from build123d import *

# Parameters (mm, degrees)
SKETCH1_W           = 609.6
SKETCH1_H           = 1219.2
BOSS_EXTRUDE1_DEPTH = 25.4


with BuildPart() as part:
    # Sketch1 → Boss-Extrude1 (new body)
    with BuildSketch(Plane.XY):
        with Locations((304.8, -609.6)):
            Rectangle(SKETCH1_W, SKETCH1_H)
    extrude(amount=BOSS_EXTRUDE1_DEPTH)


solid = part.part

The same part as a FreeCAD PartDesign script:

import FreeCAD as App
import Part
import Sketcher

V = App.Vector
Q = App.Units.Quantity

doc = App.newDocument("Part")
params = doc.addObject("Spreadsheet::Sheet", "Params")
for row, (alias, value) in enumerate([
    ("sketch1_width", "24 in"),
    ("sketch1_height", "48 in"),
    ("pad1_length", "1 in"),
], start=1):
    params.set(f"A{row}", alias)
    params.set(f"B{row}", "=" + value)
    params.setAlias(f"B{row}", alias)

body = doc.addObject("PartDesign::Body", "Body")

# Sketch on XY plane
sketch1 = doc.addObject("Sketcher::SketchObject", "Sketch")
body.addObject(sketch1)
sketch1.AttachmentSupport = (doc.XY_Plane, [""])
sketch1.MapMode = "FlatFace"
sketch1.addGeometry([
    Part.LineSegment(V(0, 0, 0), V(0, -1219, 0)),
    Part.LineSegment(V(0, -1219, 0), V(610, -1219, 0)),
    Part.LineSegment(V(610, -1219, 0), V(610, 0, 0)),
    Part.LineSegment(V(610, 0, 0), V(0, 0, 0)),
], False)
sketch1.addConstraint([
    Sketcher.Constraint("Coincident", 0, 2, 1, 1),
    Sketcher.Constraint("Coincident", 1, 2, 2, 1),
    Sketcher.Constraint("Coincident", 2, 2, 3, 1),
    Sketcher.Constraint("Coincident", 3, 2, 0, 1),
    Sketcher.Constraint("Vertical", 0),
    Sketcher.Constraint("Horizontal", 1),
    Sketcher.Constraint("Vertical", 2),
    Sketcher.Constraint("Horizontal", 3),
    Sketcher.Constraint("Coincident", 3, 2, -1, 1),
    Sketcher.Constraint("DistanceX", 1, 1, 1, 2, Q("24 in")),
    Sketcher.Constraint("DistanceY", 0, 2, 0, 1, Q("48 in")),
])
sketch1.setExpression("Constraints[9]", "Params.sketch1_width")
sketch1.setExpression("Constraints[10]", "Params.sketch1_height")
pad1 = doc.addObject("PartDesign::Pad", "Pad")
body.addObject(pad1)
pad1.Profile = sketch1
pad1.setExpression("Length", "Params.pad1_length")

doc.recompute()
